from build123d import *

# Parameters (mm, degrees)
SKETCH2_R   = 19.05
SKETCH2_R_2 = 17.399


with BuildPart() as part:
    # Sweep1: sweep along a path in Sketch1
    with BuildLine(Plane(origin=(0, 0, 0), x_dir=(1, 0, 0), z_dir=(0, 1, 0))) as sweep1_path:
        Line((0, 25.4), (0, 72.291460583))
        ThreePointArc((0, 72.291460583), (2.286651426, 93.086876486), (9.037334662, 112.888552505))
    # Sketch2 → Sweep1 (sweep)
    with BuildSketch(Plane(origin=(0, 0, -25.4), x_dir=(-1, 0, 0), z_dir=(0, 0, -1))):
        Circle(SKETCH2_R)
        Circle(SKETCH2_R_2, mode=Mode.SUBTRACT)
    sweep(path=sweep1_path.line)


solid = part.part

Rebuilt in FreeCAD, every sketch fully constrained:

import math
import FreeCAD as App
import Part
import Sketcher
from FreeCAD import Vector
Q = App.Units.Quantity

doc = App.newDocument("Part")
body = doc.addObject("PartDesign::Body", "Body")

sketch1 = body.newObject("Sketcher::SketchObject", "Sketch")
sketch1.AttachmentSupport = (doc.getObject("XY_Plane"), [""])
sketch1.MapMode = "FlatFace"
sketch1.AttachmentOffset = App.Placement(Vector(0, 0, -1 * 25.4), App.Rotation())
sketch1.addGeometry([
    Part.Circle(Vector(0, 0, 0), Vector(0, 0, 1), 19),
    Part.Circle(Vector(0, 0, 0), Vector(0, 0, 1), 17),
], False)
sketch1.addConstraint([
    Sketcher.Constraint("Coincident", 0, 3, -1, 1),
    Sketcher.Constraint("Coincident", 1, 3, -1, 1),
    Sketcher.Constraint("Diameter", 0, Q("1.5 in")),
    Sketcher.Constraint("Diameter", 1, Q("1.37 in")),
])

sketch2 = body.newObject("Sketcher::SketchObject", "Sketch001")
sketch2.AttachmentSupport = (doc.getObject("XZ_Plane"), [""])
sketch2.MapMode = "FlatFace"
sketch2.addGeometry([
    Part.LineSegment(Vector(0, -25, 0), Vector(0, -72, 0)),
    Part.ArcOfCircle(Part.Circle(Vector(96, -72, 0), Vector(0, 0, 1), 96), math.radians(-180), math.radians(-155)),
], False)
sketch2.addConstraint([
    Sketcher.Constraint("Tangent", 0, 2, 1, 1),
    Sketcher.Constraint("Vertical", 0),
    Sketcher.Constraint("PointOnObject", 0, 1, -2),
    Sketcher.Constraint("DistanceY", 0, 1, -1, 1, Q("1 in")),
    Sketcher.Constraint("Radius", 1, 95.702846),
    Sketcher.Constraint("DistanceY", 0, 2, 0, 1, 46.891461),
    Sketcher.Constraint("DistanceY", 1, 2, 0, 2, 40.597092),
])
doc.recompute()

additivepipe = body.newObject("PartDesign::AdditivePipe", "AdditivePipe")
additivepipe.Profile = sketch1
additivepipe.Spine = (sketch2, ["Edge1", "Edge2"])

doc.recompute()
